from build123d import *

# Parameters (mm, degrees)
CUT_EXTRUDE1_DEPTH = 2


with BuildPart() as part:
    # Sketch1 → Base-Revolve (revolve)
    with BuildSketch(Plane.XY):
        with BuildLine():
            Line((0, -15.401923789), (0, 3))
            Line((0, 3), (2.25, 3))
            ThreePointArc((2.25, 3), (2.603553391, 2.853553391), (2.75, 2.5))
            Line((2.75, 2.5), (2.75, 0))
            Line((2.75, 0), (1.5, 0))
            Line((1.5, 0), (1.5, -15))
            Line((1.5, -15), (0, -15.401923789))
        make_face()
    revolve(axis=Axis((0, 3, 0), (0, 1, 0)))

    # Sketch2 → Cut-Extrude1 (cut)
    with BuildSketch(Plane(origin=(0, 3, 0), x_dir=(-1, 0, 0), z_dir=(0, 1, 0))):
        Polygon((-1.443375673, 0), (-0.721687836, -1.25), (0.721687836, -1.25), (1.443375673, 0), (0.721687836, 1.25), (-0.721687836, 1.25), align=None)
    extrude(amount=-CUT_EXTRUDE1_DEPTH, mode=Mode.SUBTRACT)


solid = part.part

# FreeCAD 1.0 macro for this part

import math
import FreeCAD as App
import Part
import Sketcher
Q = App.Units.Quantity


def add_polygon(sketch, points):
    """Adds a closed chain of lines whose ends are joined by coincident constraints."""
    first, n = sketch.GeometryCount, len(points)
    for a, b in zip(points, points[1:] + points[:1]):
        sketch.addGeometry(Part.LineSegment(App.Vector(*a, 0), App.Vector(*b, 0)), False)
    for i in range(n):
        sketch.addConstraint(Sketcher.Constraint("Coincident", first + i, 2, first + (i + 1) % n, 1))

doc = App.newDocument("Part")
body = doc.addObject("PartDesign::Body", "Body")

# Sketch on XY plane
sketch1 = doc.addObject("Sketcher::SketchObject", "Sketch")
body.addObject(sketch1)
sketch1.AttachmentSupport = (doc.XY_Plane, [""])
sketch1.MapMode = "FlatFace"
sketch1.addGeometry([
    Part.LineSegment(App.Vector(0, 3, 0), App.Vector(0, -15.4, 0)),  # 0
    Part.LineSegment(App.Vector(0, -15.4, 0), App.Vector(1.5, -15, 0)),  # 1
    Part.LineSegment(App.Vector(1.5, -15, 0), App.Vector(1.5, 0, 0)),  # 2
    Part.LineSegment(App.Vector(1.5, 0, 0), App.Vector(2.75, 0, 0)),  # 3
    Part.LineSegment(App.Vector(2.75, 0, 0), App.Vector(2.75, 2.5, 0)),  # 4
    Part.ArcOfCircle(Part.Circle(App.Vector(2.25, 2.5, 0), App.Vector(0, 0, 1), 0.5), math.radians(0), math.radians(90)),  # 5
    Part.LineSegment(App.Vector(2.25, 3, 0), App.Vector(0, 3, 0)),  # 6
], False)
sketch1.addConstraint([
    Sketcher.Constraint("Coincident", 0, 2, 1, 1),
    Sketcher.Constraint("Coincident", 1, 2, 2, 1),
    Sketcher.Constraint("Coincident", 2, 2, 3, 1),
    Sketcher.Constraint("Coincident", 3, 2, 4, 1),
    Sketcher.Constraint("Tangent", 4, 2, 5, 1),
    Sketcher.Constraint("Tangent", 5, 2, 6, 1),
    Sketcher.Constraint("Coincident", 6, 2, 0, 1),
    Sketcher.Constraint("Vertical", 0),
    Sketcher.Constraint("Vertical", 2),
    Sketcher.Constraint("Horizontal", 3),
    Sketcher.Constraint("Vertical", 4),
    Sketcher.Constraint("Horizontal", 6),
    Sketcher.Constraint("PointOnObject", 0, 2, -2),
    Sketcher.Constraint("PointOnObject", 2, 2, -1),
    Sketcher.Constraint("Radius", 5, Q("0.5 mm")),
    Sketcher.Constraint("DistanceY", 2, 1, 2, 2, Q("15 mm")),
    Sketcher.Constraint("Angle", 1, Q("15 deg")),
    Sketcher.Constraint("DistanceY", 4, 1, 4, 2, Q("2.5 mm")),
    Sketcher.Constraint("DistanceX", 3, 1, 3, 2, Q("1.25 mm")),
    Sketcher.Constraint("DistanceX", 6, 2, 6, 1, Q("2.25 mm")),
])
revolution = doc.addObject("PartDesign::Revolution", "Revolution")
body.addObject(revolution)
revolution.Profile = sketch1
revolution.ReferenceAxis = (sketch1, ["V_Axis"])
revolution.Angle = 360

# Sketch on XZ plane
sketch2 = doc.addObject("Sketcher::SketchObject", "Sketch001")
body.addObject(sketch2)
sketch2.AttachmentSupport = (doc.XZ_Plane, [""])
sketch2.MapMode = "FlatFace"
sketch2.AttachmentOffset = App.Placement(App.Vector(0, 0, -3), App.Rotation())
add_polygon(sketch2, [(1.4, 0), (0.7, -1.2), (-0.7, -1.2), (-1.4, 0), (-0.7, 1.2), (0.7, 1.2)])  # lines 0-5
sketch2.addConstraint([
    Sketcher.Constraint("Horizontal", 1),
    Sketcher.Constraint("Horizontal", 4),
    Sketcher.Constraint("Symmetric", 0, 2, 3, 2, -1, 1),
    Sketcher.Constraint("Symmetric", 2, 2, 5, 2, -1, 1),
    Sketcher.Constraint("PointOnObject", 2, 2, -1),
    Sketcher.Constraint("Parallel", 2, 5),
    Sketcher.Constraint("Vertical", 1, 2, 3, 2),
    Sketcher.Constraint("Angle", 0, Q("-120 deg")),
    Sketcher.Constraint("DistanceY", 1, 2, 3, 2, Q("2.5 mm")),
    Sketcher.Constraint("DistanceX", 1, 2, 1, 1, Q("1.443376 mm")),
])
pocket1 = doc.addObject("PartDesign::Pocket", "Pocket")
body.addObject(pocket1)
pocket1.Profile = sketch2
pocket1.Length = 2
pocket1.Reversed = True

doc.recompute()
